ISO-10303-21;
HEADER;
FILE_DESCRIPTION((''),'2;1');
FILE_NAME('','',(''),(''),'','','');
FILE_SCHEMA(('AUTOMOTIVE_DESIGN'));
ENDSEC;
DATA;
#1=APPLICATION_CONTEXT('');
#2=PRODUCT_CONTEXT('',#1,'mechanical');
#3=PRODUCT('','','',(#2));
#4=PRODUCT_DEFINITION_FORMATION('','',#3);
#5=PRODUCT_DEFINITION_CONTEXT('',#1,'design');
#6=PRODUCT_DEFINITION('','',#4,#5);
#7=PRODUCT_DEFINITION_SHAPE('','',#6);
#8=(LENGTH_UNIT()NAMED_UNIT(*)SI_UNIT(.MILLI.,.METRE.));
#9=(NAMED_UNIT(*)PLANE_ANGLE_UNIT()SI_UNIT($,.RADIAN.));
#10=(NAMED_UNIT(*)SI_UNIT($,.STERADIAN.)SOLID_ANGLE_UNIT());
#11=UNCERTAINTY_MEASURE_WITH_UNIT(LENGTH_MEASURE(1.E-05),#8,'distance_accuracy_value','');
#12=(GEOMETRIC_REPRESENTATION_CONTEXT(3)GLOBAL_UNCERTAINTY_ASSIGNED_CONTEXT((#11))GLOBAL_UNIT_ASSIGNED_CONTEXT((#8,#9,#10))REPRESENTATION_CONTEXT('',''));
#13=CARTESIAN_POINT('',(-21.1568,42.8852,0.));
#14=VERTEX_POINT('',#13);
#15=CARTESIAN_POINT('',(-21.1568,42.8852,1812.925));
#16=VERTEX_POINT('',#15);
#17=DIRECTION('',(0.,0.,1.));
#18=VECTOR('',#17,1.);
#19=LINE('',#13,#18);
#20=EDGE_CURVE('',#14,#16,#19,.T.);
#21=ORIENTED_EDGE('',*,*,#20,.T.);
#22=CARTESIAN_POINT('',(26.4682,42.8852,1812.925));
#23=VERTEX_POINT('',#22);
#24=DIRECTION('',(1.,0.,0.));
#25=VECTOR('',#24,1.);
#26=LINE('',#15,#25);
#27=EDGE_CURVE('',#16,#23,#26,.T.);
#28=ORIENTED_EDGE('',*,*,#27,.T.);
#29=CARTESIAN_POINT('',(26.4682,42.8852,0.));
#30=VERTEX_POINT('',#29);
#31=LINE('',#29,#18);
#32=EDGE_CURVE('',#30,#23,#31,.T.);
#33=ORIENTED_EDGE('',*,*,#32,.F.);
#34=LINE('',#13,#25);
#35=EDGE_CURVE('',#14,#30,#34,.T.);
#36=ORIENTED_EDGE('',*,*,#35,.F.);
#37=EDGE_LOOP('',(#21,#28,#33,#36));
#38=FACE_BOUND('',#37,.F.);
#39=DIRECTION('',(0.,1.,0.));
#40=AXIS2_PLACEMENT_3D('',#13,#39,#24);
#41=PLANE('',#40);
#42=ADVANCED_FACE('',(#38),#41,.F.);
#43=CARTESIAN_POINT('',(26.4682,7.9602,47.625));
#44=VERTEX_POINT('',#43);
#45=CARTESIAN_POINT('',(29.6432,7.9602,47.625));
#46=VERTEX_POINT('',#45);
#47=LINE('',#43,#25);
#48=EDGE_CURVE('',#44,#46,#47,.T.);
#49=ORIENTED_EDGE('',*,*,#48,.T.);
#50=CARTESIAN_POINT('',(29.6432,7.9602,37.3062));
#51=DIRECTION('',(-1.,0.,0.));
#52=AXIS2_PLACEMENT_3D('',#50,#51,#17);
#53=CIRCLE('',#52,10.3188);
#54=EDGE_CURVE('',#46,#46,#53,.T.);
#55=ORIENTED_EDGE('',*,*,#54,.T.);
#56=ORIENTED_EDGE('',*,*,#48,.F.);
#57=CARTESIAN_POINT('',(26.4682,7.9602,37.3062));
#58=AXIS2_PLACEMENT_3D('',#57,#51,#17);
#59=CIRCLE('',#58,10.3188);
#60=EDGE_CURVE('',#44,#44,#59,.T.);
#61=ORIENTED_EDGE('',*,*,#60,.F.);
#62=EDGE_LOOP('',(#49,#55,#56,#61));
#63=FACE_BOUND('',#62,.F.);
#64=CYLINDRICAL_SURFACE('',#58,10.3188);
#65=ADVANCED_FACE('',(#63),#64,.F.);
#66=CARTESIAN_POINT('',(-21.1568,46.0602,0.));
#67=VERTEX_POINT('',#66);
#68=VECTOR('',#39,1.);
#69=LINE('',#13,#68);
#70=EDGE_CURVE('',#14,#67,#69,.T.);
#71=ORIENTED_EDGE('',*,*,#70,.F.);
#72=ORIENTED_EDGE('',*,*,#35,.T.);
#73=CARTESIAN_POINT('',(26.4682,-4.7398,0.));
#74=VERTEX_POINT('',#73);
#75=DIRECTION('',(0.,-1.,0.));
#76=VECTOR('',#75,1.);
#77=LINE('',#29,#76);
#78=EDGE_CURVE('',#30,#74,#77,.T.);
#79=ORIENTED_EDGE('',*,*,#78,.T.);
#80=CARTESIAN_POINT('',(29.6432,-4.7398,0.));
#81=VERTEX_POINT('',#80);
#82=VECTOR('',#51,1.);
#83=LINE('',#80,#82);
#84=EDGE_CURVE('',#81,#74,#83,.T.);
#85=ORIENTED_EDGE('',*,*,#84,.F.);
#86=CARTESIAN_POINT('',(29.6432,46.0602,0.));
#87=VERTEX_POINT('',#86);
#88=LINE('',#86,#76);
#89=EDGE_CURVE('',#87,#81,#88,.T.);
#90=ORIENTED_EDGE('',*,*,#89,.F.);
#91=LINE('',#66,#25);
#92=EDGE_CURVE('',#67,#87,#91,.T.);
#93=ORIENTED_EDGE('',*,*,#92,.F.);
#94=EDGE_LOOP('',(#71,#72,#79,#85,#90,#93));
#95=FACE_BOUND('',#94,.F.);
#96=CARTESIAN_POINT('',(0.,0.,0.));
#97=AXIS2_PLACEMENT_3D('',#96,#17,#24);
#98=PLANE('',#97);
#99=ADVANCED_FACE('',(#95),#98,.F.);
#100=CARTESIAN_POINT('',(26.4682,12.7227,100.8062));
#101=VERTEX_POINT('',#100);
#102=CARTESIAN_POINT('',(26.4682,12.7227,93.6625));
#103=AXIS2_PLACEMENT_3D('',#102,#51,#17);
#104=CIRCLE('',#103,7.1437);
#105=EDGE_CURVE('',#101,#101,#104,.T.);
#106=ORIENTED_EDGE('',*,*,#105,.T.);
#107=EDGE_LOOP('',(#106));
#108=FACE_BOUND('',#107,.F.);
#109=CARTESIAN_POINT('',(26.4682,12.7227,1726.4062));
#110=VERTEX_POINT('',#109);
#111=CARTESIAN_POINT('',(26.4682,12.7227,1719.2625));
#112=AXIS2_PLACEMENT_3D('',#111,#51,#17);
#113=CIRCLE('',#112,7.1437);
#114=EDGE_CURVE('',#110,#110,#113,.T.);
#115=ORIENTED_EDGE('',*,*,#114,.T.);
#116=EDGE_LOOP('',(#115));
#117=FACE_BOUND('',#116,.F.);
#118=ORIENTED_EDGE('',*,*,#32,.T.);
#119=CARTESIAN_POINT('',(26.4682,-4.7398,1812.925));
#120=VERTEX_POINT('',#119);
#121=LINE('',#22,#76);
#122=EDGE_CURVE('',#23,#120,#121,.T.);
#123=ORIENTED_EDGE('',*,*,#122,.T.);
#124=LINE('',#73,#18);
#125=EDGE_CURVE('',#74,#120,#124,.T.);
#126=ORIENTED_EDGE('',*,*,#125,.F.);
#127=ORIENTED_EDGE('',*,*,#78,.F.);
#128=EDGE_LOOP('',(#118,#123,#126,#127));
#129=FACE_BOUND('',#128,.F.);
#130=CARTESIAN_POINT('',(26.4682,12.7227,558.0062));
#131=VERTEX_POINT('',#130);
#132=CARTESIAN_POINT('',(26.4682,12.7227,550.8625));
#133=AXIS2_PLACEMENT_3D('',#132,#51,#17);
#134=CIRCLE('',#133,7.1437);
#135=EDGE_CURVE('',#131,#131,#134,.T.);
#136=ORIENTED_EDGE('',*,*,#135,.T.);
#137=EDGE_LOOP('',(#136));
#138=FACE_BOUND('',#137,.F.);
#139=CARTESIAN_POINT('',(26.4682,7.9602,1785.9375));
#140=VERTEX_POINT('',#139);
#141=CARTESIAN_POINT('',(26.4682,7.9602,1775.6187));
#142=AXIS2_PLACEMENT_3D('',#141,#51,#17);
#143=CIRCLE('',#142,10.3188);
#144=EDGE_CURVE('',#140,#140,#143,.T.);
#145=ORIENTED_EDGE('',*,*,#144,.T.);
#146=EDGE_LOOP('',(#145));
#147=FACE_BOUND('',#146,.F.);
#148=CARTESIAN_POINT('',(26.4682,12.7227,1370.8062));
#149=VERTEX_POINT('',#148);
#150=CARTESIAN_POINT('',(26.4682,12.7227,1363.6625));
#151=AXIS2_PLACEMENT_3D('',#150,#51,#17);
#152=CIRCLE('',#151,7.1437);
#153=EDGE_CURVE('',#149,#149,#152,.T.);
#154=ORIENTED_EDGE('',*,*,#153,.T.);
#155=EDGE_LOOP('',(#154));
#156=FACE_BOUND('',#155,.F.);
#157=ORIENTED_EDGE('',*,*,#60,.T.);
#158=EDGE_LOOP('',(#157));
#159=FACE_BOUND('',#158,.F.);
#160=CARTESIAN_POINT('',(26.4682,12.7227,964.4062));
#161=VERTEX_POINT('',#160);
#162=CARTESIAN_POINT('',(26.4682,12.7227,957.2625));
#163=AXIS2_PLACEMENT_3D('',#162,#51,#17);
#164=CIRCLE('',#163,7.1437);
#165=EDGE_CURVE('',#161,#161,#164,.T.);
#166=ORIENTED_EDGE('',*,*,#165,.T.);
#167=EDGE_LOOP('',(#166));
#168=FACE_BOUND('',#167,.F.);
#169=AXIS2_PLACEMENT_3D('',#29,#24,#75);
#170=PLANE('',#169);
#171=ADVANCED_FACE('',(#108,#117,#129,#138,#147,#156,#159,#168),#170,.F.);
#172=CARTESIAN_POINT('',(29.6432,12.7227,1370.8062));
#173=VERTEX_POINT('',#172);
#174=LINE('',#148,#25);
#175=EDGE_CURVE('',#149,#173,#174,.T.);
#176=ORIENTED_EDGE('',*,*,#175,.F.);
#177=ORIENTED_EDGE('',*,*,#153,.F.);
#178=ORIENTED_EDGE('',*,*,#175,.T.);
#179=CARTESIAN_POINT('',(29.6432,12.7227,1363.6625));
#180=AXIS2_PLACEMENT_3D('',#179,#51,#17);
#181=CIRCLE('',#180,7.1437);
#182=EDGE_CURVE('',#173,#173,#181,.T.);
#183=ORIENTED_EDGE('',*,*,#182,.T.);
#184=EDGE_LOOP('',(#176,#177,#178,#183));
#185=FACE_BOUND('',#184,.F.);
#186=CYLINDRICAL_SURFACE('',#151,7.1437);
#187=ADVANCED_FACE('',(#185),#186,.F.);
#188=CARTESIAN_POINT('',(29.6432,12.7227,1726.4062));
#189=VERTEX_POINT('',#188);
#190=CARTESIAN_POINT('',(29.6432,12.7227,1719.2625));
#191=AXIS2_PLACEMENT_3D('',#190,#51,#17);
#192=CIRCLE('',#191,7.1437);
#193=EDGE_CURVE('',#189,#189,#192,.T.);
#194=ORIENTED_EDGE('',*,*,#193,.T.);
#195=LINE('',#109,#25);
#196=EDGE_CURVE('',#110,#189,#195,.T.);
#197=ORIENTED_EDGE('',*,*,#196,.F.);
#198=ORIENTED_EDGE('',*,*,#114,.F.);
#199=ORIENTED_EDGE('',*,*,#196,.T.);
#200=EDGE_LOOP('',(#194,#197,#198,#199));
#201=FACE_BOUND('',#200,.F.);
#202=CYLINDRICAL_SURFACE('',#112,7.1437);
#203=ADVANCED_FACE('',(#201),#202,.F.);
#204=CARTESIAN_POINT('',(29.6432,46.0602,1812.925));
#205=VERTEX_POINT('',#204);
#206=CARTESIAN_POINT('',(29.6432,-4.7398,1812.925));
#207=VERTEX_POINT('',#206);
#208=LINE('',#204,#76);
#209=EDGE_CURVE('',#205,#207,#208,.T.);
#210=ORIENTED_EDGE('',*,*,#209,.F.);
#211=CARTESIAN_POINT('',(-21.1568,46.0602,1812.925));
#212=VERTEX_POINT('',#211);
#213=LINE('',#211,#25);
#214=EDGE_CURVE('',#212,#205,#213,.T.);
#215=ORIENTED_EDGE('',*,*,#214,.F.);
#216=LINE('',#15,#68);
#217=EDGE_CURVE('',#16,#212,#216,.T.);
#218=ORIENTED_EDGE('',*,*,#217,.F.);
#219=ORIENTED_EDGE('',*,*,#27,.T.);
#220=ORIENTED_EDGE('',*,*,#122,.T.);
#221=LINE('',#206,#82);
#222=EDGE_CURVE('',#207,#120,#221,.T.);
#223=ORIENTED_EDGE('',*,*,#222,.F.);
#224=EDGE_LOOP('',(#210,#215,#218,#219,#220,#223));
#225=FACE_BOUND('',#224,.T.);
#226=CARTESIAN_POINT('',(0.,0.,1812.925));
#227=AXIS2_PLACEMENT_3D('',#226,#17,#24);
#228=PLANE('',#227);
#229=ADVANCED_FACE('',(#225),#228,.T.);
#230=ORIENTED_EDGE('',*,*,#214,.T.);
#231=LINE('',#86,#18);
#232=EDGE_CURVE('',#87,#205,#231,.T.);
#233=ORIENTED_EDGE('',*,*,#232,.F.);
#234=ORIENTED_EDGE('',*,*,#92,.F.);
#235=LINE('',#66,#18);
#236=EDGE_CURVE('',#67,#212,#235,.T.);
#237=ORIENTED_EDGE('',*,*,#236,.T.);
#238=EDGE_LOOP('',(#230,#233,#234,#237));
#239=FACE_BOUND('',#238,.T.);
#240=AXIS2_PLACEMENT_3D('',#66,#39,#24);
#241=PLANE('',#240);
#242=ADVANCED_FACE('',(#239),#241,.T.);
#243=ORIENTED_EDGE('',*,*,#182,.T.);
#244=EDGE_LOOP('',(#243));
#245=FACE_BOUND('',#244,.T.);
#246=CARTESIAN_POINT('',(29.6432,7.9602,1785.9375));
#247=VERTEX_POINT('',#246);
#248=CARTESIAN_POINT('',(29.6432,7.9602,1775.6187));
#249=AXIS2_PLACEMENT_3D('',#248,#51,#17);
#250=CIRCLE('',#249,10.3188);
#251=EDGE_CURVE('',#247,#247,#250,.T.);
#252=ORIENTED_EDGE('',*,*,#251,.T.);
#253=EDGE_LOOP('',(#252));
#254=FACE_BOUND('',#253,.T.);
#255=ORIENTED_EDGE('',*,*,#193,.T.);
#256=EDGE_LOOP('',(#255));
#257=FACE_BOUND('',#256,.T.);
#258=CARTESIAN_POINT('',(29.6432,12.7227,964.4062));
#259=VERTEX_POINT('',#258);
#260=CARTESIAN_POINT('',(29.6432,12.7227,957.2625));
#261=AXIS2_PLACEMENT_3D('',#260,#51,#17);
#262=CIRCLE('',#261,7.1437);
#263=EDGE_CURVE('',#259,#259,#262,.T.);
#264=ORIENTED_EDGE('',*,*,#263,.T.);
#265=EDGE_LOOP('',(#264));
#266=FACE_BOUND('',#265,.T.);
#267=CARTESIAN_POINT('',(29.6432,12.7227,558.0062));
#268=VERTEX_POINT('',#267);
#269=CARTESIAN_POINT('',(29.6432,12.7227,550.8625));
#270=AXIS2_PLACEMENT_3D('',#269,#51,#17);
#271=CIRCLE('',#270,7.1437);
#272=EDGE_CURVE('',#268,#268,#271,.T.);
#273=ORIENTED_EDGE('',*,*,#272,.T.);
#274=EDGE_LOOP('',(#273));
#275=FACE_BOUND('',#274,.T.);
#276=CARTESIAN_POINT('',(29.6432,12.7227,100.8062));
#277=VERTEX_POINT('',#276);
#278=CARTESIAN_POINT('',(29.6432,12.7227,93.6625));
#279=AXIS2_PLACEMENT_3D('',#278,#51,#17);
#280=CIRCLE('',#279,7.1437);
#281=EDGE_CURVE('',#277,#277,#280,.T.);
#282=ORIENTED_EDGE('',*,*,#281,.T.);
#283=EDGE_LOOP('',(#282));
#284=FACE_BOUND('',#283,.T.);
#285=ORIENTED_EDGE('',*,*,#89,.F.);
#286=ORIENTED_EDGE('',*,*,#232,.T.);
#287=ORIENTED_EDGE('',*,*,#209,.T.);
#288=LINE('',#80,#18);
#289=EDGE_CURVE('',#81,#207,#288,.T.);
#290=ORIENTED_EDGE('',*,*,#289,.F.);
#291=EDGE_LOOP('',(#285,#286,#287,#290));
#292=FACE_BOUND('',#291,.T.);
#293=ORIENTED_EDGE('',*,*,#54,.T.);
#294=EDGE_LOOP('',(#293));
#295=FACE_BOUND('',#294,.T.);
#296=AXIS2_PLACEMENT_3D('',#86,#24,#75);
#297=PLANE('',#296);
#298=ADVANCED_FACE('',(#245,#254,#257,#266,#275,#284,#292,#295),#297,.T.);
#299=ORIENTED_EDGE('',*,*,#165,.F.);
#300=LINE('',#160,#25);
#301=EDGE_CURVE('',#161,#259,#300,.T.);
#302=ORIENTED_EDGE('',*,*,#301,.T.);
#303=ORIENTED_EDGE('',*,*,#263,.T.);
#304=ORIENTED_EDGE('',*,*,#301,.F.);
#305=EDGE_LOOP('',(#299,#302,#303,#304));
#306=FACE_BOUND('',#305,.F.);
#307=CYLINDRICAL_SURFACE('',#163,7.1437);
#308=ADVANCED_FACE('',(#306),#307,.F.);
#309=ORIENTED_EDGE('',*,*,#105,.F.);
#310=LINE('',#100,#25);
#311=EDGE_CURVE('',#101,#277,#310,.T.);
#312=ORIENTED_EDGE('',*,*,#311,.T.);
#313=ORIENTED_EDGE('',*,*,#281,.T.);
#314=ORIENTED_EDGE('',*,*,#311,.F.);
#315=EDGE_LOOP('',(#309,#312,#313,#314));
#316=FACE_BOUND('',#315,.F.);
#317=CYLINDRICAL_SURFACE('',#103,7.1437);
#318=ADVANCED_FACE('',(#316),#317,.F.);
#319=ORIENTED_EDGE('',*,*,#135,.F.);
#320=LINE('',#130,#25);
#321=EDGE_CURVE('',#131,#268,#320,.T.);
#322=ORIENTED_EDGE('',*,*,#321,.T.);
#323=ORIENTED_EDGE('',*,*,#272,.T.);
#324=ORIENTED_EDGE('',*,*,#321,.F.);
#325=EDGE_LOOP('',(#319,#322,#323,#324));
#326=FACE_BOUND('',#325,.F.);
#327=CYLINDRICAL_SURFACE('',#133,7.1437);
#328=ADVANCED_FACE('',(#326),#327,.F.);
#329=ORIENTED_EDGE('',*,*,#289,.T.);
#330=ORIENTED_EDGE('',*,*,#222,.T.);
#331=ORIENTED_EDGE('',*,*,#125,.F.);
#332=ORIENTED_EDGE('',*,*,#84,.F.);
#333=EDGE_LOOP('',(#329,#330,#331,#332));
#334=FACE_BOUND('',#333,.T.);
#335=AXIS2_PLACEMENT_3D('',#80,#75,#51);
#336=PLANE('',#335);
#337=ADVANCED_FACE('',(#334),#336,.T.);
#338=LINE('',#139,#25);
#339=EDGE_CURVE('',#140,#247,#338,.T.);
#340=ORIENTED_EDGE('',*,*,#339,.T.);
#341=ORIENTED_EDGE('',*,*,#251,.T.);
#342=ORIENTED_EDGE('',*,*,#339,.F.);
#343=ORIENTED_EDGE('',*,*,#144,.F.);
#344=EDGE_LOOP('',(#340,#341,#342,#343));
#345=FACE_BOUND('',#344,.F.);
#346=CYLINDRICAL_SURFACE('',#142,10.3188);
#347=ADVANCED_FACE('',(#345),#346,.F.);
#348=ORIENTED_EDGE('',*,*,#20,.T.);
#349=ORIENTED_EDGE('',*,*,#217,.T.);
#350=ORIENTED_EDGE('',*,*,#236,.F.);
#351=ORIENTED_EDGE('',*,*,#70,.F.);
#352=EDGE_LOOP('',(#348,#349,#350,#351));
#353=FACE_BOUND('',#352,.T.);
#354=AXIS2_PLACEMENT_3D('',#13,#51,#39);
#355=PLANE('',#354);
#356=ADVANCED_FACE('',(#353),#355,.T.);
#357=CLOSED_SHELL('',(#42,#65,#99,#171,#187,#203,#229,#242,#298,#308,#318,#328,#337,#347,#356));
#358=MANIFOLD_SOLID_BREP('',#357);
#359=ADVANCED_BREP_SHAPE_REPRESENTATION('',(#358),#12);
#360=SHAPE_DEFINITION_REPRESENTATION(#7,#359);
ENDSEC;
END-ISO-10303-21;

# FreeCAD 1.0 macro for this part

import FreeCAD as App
import Part
import Sketcher
Q = App.Units.Quantity

doc = App.newDocument("Part")
body = doc.addObject("PartDesign::Body", "Body")

# Sketch on XY plane
sketch1 = doc.addObject("Sketcher::SketchObject", "Sketch")
body.addObject(sketch1)
sketch1.AttachmentSupport = (doc.XY_Plane, [""])
sketch1.MapMode = "FlatFace"
sketch1.addGeometry(Part.LineSegment(App.Vector(29.6, 46.1, 0), App.Vector(-21.2, 46.1, 0)), False)
sketch1.addGeometry(Part.LineSegment(App.Vector(-21.2, 46.1, 0), App.Vector(-21.2, 42.9, 0)), False)
sketch1.addGeometry(Part.LineSegment(App.Vector(-21.2, 42.9, 0), App.Vector(26.5, 42.9, 0)), False)
sketch1.addGeometry(Part.LineSegment(App.Vector(26.5, 42.9, 0), App.Vector(26.5, -4.7, 0)), False)
sketch1.addGeometry(Part.LineSegment(App.Vector(26.5, -4.7, 0), App.Vector(29.6, -4.7, 0)), False)
sketch1.addGeometry(Part.LineSegment(App.Vector(29.6, -4.7, 0), App.Vector(29.6, 46.1, 0)), False)
sketch1.addConstraint(Sketcher.Constraint("Coincident", 0, 2, 1, 1))
sketch1.addConstraint(Sketcher.Constraint("Coincident", 1, 2, 2, 1))
sketch1.addConstraint(Sketcher.Constraint("Coincident", 2, 2, 3, 1))
sketch1.addConstraint(Sketcher.Constraint("Coincident", 3, 2, 4, 1))
sketch1.addConstraint(Sketcher.Constraint("Coincident", 4, 2, 5, 1))
sketch1.addConstraint(Sketcher.Constraint("Coincident", 5, 2, 0, 1))
sketch1.addConstraint(Sketcher.Constraint("Horizontal", 0))
sketch1.addConstraint(Sketcher.Constraint("Vertical", 1))
sketch1.addConstraint(Sketcher.Constraint("Horizontal", 2))
sketch1.addConstraint(Sketcher.Constraint("Vertical", 3))
sketch1.addConstraint(Sketcher.Constraint("Horizontal", 4))
sketch1.addConstraint(Sketcher.Constraint("Vertical", 5))
sketch1.addConstraint(Sketcher.Constraint("Equal", 4, 1))
sketch1.addConstraint(Sketcher.Constraint("Equal", 2, 3))
sketch1.addConstraint(Sketcher.Constraint("DistanceX", 0, 2, 0, 1, Q("2 in")))
sketch1.addConstraint(Sketcher.Constraint("DistanceX", 4, 1, 4, 2, Q("0.125 in")))
sketch1.addConstraint(Sketcher.Constraint("DistanceY", -1, 1, 0, 2, Q("1.8134 in")))
sketch1.addConstraint(Sketcher.Constraint("DistanceX", 0, 2, -1, 1, 21.1568))
pad1 = doc.addObject("PartDesign::Pad", "Pad")
body.addObject(pad1)
pad1.Profile = sketch1
pad1.Length = Q("71.375 in")

# Sketch on YZ plane
sketch2 = doc.addObject("Sketcher::SketchObject", "Sketch001")
body.addObject(sketch2)
sketch2.AttachmentSupport = (doc.YZ_Plane, [""])
sketch2.MapMode = "FlatFace"
sketch2.AttachmentOffset = App.Placement(App.Vector(0, 0, 26.4682), App.Rotation())
sketch2.addGeometry(Part.Circle(App.Vector(8, 37, 0), App.Vector(0, 0, 1), 10), False)
sketch2.addGeometry(Part.Circle(App.Vector(13, 94, 0), App.Vector(0, 0, 1), 7), False)
sketch2.addGeometry(Part.Circle(App.Vector(13, 551, 0), App.Vector(0, 0, 1), 7), False)
sketch2.addGeometry(Part.Circle(App.Vector(13, 957, 0), App.Vector(0, 0, 1), 7), False)
sketch2.addGeometry(Part.Circle(App.Vector(13, 1364, 0), App.Vector(0, 0, 1), 7), False)
sketch2.addGeometry(Part.Circle(App.Vector(13, 1719, 0), App.Vector(0, 0, 1), 7), False)
sketch2.addGeometry(Part.Circle(App.Vector(8, 1776, 0), App.Vector(0, 0, 1), 10), False)
sketch2.addConstraint(Sketcher.Constraint("Equal", 1, 2))
sketch2.addConstraint(Sketcher.Constraint("Equal", 2, 3))
sketch2.addConstraint(Sketcher.Constraint("Equal", 3, 4))
sketch2.addConstraint(Sketcher.Constraint("Equal", 4, 5))
sketch2.addConstraint(Sketcher.Constraint("Equal", 0, 6))
sketch2.addConstraint(Sketcher.Constraint("Vertical", 1, 3, 2, 3))
sketch2.addConstraint(Sketcher.Constraint("Vertical", 2, 3, 3, 3))
sketch2.addConstraint(Sketcher.Constraint("Vertical", 3, 3, 4, 3))
sketch2.addConstraint(Sketcher.Constraint("Vertical", 4, 3, 5, 3))
sketch2.addConstraint(Sketcher.Constraint("Vertical", 0, 3, 6, 3))
sketch2.addConstraint(Sketcher.Constraint("Diameter", 0, Q("0.8125 in")))
sketch2.addConstraint(Sketcher.Constraint("Diameter", 1, Q("0.5625 in")))
sketch2.addConstraint(Sketcher.Constraint("DistanceY", -1, 1, 0, 3, Q("1.468748 in")))
sketch2.addConstraint(Sketcher.Constraint("DistanceY", -1, 1, 1, 3, Q("3.6875 in")))
sketch2.addConstraint(Sketcher.Constraint("DistanceY", -1, 1, 5, 3, Q("67.6875 in")))
sketch2.addConstraint(Sketcher.Constraint("DistanceY", -1, 1, 6, 3, Q("69.906248 in")))
sketch2.addConstraint(Sketcher.Constraint("DistanceY", 1, 3, 2, 3, Q("18 in")))
sketch2.addConstraint(Sketcher.Constraint("DistanceY", 2, 3, 3, 3, Q("16 in")))
sketch2.addConstraint(Sketcher.Constraint("DistanceY", 3, 3, 4, 3, Q("16 in")))
sketch2.addConstraint(Sketcher.Constraint("DistanceX", 0, 3, 1, 3, Q("0.1875 in")))
sketch2.addConstraint(Sketcher.Constraint("DistanceX", -1, 1, 0, 3, Q("0.3134 in")))
pocket1 = doc.addObject("PartDesign::Pocket", "Pocket")
body.addObject(pocket1)
pocket1.Profile = sketch2
pocket1.Length = Q("71.375 in")
pocket1.Reversed = True

doc.recompute()
